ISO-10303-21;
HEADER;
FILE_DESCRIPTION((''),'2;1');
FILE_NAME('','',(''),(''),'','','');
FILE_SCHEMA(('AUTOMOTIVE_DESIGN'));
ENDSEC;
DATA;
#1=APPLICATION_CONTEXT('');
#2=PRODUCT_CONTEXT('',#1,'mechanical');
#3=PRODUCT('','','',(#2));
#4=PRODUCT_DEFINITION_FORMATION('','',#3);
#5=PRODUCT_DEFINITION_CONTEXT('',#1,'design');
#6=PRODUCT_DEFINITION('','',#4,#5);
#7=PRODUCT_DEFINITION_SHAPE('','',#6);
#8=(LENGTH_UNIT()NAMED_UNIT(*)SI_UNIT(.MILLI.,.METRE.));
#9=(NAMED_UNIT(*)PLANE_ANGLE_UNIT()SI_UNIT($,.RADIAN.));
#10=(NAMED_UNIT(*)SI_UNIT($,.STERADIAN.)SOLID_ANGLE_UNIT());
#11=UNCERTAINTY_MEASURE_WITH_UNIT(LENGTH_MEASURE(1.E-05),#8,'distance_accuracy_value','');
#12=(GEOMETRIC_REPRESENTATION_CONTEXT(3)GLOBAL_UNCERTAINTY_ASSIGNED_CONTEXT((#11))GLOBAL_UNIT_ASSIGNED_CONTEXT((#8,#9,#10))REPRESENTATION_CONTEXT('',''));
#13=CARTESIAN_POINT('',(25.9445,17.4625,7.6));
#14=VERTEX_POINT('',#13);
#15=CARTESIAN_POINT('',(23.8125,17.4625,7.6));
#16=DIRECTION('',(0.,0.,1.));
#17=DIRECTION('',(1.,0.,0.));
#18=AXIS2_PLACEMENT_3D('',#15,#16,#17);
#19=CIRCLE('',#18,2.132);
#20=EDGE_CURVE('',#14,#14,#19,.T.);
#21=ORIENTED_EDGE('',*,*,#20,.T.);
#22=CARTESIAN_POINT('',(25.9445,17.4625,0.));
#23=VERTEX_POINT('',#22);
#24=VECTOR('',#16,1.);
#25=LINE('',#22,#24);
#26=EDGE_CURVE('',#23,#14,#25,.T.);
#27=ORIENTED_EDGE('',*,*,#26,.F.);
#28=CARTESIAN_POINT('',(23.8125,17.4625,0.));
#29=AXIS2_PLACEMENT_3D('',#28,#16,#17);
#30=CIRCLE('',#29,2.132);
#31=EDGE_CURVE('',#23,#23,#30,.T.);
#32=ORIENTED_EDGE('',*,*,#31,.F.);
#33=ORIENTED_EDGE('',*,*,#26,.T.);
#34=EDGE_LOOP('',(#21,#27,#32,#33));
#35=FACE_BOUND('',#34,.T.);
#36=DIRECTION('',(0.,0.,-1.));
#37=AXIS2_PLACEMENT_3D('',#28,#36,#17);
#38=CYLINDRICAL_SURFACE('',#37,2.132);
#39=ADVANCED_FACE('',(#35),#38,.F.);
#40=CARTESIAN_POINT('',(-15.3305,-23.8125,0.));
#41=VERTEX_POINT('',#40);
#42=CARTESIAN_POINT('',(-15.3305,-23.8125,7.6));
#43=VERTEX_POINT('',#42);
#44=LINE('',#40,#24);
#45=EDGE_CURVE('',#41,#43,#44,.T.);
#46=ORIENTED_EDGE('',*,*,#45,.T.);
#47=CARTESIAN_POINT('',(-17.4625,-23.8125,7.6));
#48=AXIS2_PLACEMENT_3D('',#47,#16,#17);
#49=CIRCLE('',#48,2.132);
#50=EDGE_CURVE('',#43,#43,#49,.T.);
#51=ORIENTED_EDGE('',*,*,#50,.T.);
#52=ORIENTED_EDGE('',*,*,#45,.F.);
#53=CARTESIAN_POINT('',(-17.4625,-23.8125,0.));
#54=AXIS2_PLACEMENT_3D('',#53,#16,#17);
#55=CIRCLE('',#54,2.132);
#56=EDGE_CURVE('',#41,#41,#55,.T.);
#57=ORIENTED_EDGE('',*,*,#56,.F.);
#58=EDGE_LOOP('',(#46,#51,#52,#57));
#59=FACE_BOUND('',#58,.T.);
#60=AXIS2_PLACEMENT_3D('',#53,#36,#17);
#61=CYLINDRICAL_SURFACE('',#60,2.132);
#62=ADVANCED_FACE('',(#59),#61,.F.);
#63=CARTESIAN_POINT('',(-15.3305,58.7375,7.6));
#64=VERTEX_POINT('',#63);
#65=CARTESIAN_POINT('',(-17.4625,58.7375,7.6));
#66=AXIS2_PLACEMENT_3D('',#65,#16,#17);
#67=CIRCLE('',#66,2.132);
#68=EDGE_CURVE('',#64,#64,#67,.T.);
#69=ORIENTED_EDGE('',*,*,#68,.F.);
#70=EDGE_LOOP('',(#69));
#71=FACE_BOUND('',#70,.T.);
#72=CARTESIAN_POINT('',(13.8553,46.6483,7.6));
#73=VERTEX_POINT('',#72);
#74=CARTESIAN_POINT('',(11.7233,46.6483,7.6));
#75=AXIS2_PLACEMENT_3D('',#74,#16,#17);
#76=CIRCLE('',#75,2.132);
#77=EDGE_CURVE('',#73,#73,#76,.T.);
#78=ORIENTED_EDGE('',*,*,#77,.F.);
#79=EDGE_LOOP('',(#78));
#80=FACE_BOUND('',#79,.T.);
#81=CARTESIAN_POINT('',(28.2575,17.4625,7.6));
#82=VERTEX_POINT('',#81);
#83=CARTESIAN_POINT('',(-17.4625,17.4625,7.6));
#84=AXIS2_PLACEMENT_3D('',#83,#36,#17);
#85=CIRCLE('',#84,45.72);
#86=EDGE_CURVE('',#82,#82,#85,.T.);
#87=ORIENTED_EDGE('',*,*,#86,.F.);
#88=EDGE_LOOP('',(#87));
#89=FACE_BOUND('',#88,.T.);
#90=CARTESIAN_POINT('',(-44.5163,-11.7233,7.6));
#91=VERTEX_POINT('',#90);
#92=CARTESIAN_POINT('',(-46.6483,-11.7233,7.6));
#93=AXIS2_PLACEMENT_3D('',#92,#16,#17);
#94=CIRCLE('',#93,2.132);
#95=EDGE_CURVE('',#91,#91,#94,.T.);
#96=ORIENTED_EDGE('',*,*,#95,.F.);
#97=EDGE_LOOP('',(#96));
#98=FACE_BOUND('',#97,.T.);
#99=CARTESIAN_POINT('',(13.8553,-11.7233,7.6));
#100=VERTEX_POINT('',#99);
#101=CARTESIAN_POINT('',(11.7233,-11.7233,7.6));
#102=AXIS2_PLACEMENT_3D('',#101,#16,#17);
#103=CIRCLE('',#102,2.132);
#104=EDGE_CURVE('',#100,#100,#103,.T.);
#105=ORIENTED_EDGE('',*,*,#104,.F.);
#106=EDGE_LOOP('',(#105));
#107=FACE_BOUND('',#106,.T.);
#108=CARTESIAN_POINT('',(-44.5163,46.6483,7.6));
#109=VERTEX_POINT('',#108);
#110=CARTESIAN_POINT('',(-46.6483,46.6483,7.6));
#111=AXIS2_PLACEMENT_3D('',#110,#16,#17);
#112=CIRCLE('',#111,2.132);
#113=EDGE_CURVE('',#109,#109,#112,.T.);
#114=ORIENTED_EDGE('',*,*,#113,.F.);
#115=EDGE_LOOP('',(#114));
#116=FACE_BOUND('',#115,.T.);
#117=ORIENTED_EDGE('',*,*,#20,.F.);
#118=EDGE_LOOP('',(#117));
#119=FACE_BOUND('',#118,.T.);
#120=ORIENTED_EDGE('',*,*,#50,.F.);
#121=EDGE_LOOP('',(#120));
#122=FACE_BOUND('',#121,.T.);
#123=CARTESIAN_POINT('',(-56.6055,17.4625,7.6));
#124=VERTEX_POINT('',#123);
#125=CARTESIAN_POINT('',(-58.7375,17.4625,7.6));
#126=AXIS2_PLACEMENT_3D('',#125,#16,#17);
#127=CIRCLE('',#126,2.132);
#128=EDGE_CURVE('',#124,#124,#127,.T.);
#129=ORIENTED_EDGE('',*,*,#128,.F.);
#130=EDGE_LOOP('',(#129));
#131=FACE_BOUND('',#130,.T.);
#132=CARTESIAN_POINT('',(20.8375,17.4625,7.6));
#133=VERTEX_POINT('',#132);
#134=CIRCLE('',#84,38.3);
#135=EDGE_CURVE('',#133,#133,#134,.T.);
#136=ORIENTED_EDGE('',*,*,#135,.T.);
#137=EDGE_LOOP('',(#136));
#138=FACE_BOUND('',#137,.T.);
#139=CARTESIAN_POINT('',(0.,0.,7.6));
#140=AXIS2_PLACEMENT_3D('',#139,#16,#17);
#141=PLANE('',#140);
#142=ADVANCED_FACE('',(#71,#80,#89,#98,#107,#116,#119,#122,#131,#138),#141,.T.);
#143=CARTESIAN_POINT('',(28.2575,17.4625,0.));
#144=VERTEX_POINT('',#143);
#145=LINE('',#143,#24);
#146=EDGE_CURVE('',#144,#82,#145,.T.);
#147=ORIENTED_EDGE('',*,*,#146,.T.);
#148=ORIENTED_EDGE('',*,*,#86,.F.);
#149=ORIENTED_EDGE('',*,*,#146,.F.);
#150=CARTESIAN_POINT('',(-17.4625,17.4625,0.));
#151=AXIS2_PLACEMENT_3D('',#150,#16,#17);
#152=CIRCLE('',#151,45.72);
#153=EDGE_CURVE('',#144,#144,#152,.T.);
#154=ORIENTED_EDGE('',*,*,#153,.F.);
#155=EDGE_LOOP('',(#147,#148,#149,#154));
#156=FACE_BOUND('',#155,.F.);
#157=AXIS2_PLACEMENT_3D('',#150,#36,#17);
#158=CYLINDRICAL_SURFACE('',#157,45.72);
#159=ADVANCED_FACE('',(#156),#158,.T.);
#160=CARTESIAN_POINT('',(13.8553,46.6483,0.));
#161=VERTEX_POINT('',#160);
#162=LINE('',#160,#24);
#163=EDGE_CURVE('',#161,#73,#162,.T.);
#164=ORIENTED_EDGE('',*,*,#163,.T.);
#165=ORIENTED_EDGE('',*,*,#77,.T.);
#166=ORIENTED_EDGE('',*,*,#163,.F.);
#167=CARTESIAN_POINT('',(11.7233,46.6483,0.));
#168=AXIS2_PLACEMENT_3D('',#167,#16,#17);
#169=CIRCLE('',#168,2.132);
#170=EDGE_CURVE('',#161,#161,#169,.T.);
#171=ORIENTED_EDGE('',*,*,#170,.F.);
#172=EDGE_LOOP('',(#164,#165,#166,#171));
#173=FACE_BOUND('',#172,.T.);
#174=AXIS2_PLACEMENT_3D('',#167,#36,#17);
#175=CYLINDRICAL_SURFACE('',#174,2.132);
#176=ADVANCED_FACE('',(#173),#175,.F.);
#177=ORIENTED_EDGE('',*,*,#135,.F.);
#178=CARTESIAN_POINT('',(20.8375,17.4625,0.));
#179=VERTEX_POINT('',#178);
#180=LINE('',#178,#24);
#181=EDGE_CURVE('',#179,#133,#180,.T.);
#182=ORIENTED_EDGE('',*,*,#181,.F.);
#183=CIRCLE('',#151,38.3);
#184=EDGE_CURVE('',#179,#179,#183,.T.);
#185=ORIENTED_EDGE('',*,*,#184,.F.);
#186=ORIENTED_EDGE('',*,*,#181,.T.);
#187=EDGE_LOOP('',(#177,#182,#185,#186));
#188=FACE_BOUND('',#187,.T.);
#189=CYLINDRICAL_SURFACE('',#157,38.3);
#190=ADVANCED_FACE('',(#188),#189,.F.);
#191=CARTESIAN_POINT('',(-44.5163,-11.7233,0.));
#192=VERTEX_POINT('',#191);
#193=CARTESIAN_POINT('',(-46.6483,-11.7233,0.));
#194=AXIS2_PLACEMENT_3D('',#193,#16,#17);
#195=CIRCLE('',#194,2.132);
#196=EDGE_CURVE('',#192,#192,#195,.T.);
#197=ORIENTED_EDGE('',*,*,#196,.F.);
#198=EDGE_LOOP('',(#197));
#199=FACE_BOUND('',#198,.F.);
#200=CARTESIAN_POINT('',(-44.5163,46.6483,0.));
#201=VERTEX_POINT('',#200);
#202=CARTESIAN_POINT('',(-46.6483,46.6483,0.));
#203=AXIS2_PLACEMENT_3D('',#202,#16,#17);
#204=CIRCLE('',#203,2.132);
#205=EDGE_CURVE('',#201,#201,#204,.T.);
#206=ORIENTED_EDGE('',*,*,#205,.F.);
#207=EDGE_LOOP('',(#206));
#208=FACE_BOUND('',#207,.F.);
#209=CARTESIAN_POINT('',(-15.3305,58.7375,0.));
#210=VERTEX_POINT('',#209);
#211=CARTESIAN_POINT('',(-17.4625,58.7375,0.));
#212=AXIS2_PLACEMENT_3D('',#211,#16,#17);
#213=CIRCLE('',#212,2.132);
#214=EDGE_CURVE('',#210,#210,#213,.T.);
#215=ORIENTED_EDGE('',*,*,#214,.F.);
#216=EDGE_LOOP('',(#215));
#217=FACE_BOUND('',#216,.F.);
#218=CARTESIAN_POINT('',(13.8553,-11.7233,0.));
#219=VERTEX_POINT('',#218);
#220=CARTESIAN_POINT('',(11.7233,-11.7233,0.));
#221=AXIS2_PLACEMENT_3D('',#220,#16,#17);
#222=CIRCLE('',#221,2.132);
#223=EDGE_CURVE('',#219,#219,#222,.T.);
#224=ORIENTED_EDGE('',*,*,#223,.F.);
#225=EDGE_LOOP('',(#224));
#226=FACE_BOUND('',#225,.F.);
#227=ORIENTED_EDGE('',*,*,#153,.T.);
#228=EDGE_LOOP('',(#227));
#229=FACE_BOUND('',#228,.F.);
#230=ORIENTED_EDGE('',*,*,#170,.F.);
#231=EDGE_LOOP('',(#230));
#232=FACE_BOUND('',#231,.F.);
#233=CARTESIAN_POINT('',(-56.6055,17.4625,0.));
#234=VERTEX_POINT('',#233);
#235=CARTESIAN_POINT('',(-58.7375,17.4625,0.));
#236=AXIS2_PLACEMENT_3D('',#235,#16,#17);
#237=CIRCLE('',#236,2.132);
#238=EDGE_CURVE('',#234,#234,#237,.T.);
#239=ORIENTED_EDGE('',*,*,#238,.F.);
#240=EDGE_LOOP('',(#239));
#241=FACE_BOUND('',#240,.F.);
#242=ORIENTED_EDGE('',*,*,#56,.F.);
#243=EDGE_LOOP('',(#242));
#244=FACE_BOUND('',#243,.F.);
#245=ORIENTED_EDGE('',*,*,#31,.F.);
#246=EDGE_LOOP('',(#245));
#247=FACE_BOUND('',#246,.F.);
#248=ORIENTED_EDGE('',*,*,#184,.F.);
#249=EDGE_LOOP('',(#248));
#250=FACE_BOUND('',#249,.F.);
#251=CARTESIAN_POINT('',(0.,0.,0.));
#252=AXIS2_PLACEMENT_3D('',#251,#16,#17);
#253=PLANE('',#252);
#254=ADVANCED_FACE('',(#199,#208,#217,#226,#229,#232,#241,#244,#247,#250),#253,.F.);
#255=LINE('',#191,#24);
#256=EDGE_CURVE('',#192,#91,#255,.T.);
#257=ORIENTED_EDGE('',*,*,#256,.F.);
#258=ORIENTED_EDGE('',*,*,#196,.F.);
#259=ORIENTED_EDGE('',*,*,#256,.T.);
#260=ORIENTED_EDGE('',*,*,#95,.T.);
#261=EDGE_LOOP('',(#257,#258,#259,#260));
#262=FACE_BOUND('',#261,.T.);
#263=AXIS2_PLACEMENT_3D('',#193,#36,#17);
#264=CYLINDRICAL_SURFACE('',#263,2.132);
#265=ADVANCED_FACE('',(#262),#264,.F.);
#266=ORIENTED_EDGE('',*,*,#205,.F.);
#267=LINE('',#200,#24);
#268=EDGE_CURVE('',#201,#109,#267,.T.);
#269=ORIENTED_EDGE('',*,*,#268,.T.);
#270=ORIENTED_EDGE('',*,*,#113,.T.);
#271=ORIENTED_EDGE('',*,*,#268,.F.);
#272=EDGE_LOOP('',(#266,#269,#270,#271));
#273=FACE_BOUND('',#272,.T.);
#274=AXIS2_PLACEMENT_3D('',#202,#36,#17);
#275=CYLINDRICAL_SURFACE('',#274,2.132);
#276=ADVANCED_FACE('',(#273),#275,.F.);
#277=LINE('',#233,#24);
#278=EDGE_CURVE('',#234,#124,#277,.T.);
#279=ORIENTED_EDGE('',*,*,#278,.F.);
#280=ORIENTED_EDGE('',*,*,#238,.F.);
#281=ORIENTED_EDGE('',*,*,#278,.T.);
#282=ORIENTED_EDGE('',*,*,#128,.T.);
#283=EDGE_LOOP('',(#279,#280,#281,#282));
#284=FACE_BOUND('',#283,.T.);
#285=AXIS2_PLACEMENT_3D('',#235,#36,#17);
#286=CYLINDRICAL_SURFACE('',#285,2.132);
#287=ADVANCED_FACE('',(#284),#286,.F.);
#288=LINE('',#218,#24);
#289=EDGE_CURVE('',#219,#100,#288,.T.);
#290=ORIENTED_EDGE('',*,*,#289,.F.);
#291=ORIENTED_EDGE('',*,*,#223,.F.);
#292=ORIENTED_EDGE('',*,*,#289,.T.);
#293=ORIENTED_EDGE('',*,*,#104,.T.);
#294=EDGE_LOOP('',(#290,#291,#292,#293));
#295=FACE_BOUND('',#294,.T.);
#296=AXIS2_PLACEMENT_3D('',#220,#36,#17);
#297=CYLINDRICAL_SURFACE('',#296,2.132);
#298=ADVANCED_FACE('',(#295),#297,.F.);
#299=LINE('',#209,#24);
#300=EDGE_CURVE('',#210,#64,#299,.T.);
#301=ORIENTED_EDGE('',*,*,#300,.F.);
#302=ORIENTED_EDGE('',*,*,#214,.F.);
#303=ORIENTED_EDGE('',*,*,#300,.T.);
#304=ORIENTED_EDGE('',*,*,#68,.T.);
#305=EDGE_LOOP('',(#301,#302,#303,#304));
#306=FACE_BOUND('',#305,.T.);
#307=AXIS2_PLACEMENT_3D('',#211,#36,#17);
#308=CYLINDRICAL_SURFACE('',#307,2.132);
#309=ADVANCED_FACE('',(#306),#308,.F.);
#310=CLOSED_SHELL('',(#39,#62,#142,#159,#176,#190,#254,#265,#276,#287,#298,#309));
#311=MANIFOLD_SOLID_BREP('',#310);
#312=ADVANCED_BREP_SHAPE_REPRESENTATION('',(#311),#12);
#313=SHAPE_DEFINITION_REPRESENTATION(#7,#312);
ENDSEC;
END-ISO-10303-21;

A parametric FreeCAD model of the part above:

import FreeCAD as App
import Part
import Sketcher
Q = App.Units.Quantity

doc = App.newDocument("Part")
body = doc.addObject("PartDesign::Body", "Body")

sketch1 = body.newObject("Sketcher::SketchObject", "Sketch")
sketch1.AttachmentSupport = (doc.getObject("XY_Plane"), [""])
sketch1.MapMode = "FlatFace"
sketch1.addGeometry([
    Part.Circle(App.Vector(-17.5, 17.5, 0), App.Vector(0, 0, 1), 45.7),
    Part.Circle(App.Vector(-17.5, 17.5, 0), App.Vector(0, 0, 1), 38.3),
    Part.Circle(App.Vector(-17.5, -23.8, 0), App.Vector(0, 0, 1), 2.1),
    Part.Circle(App.Vector(11.7, -11.7, 0), App.Vector(0, 0, 1), 2.1),
    Part.Circle(App.Vector(23.8, 17.5, 0), App.Vector(0, 0, 1), 2.1),
    Part.Circle(App.Vector(-58.7, 17.5, 0), App.Vector(0, 0, 1), 2.1),
    Part.Circle(App.Vector(-46.6, 46.6, 0), App.Vector(0, 0, 1), 2.1),
    Part.Circle(App.Vector(-17.5, 58.7, 0), App.Vector(0, 0, 1), 2.1),
    Part.Circle(App.Vector(11.7, 46.6, 0), App.Vector(0, 0, 1), 2.1),
    Part.Circle(App.Vector(-46.6, -11.7, 0), App.Vector(0, 0, 1), 2.1),
], False)
sketch1.addConstraint([
    Sketcher.Constraint("Coincident", 1, 3, 0, 3),
    Sketcher.Constraint("Equal", 2, 3),
    Sketcher.Constraint("Equal", 3, 4),
    Sketcher.Constraint("Equal", 4, 5),
    Sketcher.Constraint("Equal", 5, 6),
    Sketcher.Constraint("Equal", 6, 7),
    Sketcher.Constraint("Equal", 7, 8),
    Sketcher.Constraint("Equal", 8, 9),
    Sketcher.Constraint("Horizontal", 1, 3, 4, 3),
    Sketcher.Constraint("Horizontal", 4, 3, 5, 3),
    Sketcher.Constraint("Horizontal", 6, 3, 8, 3),
    Sketcher.Constraint("Horizontal", 3, 3, 9, 3),
    Sketcher.Constraint("Vertical", 1, 3, 2, 3),
    Sketcher.Constraint("Vertical", 2, 3, 7, 3),
    Sketcher.Constraint("Vertical", 3, 3, 8, 3),
    Sketcher.Constraint("Vertical", 6, 3, 9, 3),
    Sketcher.Constraint("Diameter", 1, Q("76.6 mm")),
    Sketcher.Constraint("Diameter", 0, Q("91.44 mm")),
    Sketcher.Constraint("Diameter", 2, Q("4.264 mm")),
    Sketcher.Constraint("DistanceX", 5, 3, 4, 3, Q("82.55 mm")),
    Sketcher.Constraint("DistanceY", 2, 3, 0, 3, Q("41.275 mm")),
    Sketcher.Constraint("DistanceX", 0, 3, 4, 3, Q("41.275 mm")),
    Sketcher.Constraint("DistanceY", 0, 3, 7, 3, Q("41.275 mm")),
    Sketcher.Constraint("DistanceX", 0, 3, -1, 1, Q("17.4625 mm")),
    Sketcher.Constraint("DistanceY", -1, 1, 0, 3, Q("17.4625 mm")),
    Sketcher.Constraint("DistanceX", -1, 1, 3, 3, Q("11.7233 mm")),
    Sketcher.Constraint("DistanceY", 3, 3, -1, 1, Q("11.7233 mm")),
    Sketcher.Constraint("DistanceX", 6, 3, -1, 1, Q("46.6483 mm")),
    Sketcher.Constraint("DistanceY", -1, 1, 6, 3, Q("46.6483 mm")),
])
pad1 = body.newObject("PartDesign::Pad", "Pad")
pad1.Profile = sketch1
pad1.Length = 7.6

doc.recompute()
